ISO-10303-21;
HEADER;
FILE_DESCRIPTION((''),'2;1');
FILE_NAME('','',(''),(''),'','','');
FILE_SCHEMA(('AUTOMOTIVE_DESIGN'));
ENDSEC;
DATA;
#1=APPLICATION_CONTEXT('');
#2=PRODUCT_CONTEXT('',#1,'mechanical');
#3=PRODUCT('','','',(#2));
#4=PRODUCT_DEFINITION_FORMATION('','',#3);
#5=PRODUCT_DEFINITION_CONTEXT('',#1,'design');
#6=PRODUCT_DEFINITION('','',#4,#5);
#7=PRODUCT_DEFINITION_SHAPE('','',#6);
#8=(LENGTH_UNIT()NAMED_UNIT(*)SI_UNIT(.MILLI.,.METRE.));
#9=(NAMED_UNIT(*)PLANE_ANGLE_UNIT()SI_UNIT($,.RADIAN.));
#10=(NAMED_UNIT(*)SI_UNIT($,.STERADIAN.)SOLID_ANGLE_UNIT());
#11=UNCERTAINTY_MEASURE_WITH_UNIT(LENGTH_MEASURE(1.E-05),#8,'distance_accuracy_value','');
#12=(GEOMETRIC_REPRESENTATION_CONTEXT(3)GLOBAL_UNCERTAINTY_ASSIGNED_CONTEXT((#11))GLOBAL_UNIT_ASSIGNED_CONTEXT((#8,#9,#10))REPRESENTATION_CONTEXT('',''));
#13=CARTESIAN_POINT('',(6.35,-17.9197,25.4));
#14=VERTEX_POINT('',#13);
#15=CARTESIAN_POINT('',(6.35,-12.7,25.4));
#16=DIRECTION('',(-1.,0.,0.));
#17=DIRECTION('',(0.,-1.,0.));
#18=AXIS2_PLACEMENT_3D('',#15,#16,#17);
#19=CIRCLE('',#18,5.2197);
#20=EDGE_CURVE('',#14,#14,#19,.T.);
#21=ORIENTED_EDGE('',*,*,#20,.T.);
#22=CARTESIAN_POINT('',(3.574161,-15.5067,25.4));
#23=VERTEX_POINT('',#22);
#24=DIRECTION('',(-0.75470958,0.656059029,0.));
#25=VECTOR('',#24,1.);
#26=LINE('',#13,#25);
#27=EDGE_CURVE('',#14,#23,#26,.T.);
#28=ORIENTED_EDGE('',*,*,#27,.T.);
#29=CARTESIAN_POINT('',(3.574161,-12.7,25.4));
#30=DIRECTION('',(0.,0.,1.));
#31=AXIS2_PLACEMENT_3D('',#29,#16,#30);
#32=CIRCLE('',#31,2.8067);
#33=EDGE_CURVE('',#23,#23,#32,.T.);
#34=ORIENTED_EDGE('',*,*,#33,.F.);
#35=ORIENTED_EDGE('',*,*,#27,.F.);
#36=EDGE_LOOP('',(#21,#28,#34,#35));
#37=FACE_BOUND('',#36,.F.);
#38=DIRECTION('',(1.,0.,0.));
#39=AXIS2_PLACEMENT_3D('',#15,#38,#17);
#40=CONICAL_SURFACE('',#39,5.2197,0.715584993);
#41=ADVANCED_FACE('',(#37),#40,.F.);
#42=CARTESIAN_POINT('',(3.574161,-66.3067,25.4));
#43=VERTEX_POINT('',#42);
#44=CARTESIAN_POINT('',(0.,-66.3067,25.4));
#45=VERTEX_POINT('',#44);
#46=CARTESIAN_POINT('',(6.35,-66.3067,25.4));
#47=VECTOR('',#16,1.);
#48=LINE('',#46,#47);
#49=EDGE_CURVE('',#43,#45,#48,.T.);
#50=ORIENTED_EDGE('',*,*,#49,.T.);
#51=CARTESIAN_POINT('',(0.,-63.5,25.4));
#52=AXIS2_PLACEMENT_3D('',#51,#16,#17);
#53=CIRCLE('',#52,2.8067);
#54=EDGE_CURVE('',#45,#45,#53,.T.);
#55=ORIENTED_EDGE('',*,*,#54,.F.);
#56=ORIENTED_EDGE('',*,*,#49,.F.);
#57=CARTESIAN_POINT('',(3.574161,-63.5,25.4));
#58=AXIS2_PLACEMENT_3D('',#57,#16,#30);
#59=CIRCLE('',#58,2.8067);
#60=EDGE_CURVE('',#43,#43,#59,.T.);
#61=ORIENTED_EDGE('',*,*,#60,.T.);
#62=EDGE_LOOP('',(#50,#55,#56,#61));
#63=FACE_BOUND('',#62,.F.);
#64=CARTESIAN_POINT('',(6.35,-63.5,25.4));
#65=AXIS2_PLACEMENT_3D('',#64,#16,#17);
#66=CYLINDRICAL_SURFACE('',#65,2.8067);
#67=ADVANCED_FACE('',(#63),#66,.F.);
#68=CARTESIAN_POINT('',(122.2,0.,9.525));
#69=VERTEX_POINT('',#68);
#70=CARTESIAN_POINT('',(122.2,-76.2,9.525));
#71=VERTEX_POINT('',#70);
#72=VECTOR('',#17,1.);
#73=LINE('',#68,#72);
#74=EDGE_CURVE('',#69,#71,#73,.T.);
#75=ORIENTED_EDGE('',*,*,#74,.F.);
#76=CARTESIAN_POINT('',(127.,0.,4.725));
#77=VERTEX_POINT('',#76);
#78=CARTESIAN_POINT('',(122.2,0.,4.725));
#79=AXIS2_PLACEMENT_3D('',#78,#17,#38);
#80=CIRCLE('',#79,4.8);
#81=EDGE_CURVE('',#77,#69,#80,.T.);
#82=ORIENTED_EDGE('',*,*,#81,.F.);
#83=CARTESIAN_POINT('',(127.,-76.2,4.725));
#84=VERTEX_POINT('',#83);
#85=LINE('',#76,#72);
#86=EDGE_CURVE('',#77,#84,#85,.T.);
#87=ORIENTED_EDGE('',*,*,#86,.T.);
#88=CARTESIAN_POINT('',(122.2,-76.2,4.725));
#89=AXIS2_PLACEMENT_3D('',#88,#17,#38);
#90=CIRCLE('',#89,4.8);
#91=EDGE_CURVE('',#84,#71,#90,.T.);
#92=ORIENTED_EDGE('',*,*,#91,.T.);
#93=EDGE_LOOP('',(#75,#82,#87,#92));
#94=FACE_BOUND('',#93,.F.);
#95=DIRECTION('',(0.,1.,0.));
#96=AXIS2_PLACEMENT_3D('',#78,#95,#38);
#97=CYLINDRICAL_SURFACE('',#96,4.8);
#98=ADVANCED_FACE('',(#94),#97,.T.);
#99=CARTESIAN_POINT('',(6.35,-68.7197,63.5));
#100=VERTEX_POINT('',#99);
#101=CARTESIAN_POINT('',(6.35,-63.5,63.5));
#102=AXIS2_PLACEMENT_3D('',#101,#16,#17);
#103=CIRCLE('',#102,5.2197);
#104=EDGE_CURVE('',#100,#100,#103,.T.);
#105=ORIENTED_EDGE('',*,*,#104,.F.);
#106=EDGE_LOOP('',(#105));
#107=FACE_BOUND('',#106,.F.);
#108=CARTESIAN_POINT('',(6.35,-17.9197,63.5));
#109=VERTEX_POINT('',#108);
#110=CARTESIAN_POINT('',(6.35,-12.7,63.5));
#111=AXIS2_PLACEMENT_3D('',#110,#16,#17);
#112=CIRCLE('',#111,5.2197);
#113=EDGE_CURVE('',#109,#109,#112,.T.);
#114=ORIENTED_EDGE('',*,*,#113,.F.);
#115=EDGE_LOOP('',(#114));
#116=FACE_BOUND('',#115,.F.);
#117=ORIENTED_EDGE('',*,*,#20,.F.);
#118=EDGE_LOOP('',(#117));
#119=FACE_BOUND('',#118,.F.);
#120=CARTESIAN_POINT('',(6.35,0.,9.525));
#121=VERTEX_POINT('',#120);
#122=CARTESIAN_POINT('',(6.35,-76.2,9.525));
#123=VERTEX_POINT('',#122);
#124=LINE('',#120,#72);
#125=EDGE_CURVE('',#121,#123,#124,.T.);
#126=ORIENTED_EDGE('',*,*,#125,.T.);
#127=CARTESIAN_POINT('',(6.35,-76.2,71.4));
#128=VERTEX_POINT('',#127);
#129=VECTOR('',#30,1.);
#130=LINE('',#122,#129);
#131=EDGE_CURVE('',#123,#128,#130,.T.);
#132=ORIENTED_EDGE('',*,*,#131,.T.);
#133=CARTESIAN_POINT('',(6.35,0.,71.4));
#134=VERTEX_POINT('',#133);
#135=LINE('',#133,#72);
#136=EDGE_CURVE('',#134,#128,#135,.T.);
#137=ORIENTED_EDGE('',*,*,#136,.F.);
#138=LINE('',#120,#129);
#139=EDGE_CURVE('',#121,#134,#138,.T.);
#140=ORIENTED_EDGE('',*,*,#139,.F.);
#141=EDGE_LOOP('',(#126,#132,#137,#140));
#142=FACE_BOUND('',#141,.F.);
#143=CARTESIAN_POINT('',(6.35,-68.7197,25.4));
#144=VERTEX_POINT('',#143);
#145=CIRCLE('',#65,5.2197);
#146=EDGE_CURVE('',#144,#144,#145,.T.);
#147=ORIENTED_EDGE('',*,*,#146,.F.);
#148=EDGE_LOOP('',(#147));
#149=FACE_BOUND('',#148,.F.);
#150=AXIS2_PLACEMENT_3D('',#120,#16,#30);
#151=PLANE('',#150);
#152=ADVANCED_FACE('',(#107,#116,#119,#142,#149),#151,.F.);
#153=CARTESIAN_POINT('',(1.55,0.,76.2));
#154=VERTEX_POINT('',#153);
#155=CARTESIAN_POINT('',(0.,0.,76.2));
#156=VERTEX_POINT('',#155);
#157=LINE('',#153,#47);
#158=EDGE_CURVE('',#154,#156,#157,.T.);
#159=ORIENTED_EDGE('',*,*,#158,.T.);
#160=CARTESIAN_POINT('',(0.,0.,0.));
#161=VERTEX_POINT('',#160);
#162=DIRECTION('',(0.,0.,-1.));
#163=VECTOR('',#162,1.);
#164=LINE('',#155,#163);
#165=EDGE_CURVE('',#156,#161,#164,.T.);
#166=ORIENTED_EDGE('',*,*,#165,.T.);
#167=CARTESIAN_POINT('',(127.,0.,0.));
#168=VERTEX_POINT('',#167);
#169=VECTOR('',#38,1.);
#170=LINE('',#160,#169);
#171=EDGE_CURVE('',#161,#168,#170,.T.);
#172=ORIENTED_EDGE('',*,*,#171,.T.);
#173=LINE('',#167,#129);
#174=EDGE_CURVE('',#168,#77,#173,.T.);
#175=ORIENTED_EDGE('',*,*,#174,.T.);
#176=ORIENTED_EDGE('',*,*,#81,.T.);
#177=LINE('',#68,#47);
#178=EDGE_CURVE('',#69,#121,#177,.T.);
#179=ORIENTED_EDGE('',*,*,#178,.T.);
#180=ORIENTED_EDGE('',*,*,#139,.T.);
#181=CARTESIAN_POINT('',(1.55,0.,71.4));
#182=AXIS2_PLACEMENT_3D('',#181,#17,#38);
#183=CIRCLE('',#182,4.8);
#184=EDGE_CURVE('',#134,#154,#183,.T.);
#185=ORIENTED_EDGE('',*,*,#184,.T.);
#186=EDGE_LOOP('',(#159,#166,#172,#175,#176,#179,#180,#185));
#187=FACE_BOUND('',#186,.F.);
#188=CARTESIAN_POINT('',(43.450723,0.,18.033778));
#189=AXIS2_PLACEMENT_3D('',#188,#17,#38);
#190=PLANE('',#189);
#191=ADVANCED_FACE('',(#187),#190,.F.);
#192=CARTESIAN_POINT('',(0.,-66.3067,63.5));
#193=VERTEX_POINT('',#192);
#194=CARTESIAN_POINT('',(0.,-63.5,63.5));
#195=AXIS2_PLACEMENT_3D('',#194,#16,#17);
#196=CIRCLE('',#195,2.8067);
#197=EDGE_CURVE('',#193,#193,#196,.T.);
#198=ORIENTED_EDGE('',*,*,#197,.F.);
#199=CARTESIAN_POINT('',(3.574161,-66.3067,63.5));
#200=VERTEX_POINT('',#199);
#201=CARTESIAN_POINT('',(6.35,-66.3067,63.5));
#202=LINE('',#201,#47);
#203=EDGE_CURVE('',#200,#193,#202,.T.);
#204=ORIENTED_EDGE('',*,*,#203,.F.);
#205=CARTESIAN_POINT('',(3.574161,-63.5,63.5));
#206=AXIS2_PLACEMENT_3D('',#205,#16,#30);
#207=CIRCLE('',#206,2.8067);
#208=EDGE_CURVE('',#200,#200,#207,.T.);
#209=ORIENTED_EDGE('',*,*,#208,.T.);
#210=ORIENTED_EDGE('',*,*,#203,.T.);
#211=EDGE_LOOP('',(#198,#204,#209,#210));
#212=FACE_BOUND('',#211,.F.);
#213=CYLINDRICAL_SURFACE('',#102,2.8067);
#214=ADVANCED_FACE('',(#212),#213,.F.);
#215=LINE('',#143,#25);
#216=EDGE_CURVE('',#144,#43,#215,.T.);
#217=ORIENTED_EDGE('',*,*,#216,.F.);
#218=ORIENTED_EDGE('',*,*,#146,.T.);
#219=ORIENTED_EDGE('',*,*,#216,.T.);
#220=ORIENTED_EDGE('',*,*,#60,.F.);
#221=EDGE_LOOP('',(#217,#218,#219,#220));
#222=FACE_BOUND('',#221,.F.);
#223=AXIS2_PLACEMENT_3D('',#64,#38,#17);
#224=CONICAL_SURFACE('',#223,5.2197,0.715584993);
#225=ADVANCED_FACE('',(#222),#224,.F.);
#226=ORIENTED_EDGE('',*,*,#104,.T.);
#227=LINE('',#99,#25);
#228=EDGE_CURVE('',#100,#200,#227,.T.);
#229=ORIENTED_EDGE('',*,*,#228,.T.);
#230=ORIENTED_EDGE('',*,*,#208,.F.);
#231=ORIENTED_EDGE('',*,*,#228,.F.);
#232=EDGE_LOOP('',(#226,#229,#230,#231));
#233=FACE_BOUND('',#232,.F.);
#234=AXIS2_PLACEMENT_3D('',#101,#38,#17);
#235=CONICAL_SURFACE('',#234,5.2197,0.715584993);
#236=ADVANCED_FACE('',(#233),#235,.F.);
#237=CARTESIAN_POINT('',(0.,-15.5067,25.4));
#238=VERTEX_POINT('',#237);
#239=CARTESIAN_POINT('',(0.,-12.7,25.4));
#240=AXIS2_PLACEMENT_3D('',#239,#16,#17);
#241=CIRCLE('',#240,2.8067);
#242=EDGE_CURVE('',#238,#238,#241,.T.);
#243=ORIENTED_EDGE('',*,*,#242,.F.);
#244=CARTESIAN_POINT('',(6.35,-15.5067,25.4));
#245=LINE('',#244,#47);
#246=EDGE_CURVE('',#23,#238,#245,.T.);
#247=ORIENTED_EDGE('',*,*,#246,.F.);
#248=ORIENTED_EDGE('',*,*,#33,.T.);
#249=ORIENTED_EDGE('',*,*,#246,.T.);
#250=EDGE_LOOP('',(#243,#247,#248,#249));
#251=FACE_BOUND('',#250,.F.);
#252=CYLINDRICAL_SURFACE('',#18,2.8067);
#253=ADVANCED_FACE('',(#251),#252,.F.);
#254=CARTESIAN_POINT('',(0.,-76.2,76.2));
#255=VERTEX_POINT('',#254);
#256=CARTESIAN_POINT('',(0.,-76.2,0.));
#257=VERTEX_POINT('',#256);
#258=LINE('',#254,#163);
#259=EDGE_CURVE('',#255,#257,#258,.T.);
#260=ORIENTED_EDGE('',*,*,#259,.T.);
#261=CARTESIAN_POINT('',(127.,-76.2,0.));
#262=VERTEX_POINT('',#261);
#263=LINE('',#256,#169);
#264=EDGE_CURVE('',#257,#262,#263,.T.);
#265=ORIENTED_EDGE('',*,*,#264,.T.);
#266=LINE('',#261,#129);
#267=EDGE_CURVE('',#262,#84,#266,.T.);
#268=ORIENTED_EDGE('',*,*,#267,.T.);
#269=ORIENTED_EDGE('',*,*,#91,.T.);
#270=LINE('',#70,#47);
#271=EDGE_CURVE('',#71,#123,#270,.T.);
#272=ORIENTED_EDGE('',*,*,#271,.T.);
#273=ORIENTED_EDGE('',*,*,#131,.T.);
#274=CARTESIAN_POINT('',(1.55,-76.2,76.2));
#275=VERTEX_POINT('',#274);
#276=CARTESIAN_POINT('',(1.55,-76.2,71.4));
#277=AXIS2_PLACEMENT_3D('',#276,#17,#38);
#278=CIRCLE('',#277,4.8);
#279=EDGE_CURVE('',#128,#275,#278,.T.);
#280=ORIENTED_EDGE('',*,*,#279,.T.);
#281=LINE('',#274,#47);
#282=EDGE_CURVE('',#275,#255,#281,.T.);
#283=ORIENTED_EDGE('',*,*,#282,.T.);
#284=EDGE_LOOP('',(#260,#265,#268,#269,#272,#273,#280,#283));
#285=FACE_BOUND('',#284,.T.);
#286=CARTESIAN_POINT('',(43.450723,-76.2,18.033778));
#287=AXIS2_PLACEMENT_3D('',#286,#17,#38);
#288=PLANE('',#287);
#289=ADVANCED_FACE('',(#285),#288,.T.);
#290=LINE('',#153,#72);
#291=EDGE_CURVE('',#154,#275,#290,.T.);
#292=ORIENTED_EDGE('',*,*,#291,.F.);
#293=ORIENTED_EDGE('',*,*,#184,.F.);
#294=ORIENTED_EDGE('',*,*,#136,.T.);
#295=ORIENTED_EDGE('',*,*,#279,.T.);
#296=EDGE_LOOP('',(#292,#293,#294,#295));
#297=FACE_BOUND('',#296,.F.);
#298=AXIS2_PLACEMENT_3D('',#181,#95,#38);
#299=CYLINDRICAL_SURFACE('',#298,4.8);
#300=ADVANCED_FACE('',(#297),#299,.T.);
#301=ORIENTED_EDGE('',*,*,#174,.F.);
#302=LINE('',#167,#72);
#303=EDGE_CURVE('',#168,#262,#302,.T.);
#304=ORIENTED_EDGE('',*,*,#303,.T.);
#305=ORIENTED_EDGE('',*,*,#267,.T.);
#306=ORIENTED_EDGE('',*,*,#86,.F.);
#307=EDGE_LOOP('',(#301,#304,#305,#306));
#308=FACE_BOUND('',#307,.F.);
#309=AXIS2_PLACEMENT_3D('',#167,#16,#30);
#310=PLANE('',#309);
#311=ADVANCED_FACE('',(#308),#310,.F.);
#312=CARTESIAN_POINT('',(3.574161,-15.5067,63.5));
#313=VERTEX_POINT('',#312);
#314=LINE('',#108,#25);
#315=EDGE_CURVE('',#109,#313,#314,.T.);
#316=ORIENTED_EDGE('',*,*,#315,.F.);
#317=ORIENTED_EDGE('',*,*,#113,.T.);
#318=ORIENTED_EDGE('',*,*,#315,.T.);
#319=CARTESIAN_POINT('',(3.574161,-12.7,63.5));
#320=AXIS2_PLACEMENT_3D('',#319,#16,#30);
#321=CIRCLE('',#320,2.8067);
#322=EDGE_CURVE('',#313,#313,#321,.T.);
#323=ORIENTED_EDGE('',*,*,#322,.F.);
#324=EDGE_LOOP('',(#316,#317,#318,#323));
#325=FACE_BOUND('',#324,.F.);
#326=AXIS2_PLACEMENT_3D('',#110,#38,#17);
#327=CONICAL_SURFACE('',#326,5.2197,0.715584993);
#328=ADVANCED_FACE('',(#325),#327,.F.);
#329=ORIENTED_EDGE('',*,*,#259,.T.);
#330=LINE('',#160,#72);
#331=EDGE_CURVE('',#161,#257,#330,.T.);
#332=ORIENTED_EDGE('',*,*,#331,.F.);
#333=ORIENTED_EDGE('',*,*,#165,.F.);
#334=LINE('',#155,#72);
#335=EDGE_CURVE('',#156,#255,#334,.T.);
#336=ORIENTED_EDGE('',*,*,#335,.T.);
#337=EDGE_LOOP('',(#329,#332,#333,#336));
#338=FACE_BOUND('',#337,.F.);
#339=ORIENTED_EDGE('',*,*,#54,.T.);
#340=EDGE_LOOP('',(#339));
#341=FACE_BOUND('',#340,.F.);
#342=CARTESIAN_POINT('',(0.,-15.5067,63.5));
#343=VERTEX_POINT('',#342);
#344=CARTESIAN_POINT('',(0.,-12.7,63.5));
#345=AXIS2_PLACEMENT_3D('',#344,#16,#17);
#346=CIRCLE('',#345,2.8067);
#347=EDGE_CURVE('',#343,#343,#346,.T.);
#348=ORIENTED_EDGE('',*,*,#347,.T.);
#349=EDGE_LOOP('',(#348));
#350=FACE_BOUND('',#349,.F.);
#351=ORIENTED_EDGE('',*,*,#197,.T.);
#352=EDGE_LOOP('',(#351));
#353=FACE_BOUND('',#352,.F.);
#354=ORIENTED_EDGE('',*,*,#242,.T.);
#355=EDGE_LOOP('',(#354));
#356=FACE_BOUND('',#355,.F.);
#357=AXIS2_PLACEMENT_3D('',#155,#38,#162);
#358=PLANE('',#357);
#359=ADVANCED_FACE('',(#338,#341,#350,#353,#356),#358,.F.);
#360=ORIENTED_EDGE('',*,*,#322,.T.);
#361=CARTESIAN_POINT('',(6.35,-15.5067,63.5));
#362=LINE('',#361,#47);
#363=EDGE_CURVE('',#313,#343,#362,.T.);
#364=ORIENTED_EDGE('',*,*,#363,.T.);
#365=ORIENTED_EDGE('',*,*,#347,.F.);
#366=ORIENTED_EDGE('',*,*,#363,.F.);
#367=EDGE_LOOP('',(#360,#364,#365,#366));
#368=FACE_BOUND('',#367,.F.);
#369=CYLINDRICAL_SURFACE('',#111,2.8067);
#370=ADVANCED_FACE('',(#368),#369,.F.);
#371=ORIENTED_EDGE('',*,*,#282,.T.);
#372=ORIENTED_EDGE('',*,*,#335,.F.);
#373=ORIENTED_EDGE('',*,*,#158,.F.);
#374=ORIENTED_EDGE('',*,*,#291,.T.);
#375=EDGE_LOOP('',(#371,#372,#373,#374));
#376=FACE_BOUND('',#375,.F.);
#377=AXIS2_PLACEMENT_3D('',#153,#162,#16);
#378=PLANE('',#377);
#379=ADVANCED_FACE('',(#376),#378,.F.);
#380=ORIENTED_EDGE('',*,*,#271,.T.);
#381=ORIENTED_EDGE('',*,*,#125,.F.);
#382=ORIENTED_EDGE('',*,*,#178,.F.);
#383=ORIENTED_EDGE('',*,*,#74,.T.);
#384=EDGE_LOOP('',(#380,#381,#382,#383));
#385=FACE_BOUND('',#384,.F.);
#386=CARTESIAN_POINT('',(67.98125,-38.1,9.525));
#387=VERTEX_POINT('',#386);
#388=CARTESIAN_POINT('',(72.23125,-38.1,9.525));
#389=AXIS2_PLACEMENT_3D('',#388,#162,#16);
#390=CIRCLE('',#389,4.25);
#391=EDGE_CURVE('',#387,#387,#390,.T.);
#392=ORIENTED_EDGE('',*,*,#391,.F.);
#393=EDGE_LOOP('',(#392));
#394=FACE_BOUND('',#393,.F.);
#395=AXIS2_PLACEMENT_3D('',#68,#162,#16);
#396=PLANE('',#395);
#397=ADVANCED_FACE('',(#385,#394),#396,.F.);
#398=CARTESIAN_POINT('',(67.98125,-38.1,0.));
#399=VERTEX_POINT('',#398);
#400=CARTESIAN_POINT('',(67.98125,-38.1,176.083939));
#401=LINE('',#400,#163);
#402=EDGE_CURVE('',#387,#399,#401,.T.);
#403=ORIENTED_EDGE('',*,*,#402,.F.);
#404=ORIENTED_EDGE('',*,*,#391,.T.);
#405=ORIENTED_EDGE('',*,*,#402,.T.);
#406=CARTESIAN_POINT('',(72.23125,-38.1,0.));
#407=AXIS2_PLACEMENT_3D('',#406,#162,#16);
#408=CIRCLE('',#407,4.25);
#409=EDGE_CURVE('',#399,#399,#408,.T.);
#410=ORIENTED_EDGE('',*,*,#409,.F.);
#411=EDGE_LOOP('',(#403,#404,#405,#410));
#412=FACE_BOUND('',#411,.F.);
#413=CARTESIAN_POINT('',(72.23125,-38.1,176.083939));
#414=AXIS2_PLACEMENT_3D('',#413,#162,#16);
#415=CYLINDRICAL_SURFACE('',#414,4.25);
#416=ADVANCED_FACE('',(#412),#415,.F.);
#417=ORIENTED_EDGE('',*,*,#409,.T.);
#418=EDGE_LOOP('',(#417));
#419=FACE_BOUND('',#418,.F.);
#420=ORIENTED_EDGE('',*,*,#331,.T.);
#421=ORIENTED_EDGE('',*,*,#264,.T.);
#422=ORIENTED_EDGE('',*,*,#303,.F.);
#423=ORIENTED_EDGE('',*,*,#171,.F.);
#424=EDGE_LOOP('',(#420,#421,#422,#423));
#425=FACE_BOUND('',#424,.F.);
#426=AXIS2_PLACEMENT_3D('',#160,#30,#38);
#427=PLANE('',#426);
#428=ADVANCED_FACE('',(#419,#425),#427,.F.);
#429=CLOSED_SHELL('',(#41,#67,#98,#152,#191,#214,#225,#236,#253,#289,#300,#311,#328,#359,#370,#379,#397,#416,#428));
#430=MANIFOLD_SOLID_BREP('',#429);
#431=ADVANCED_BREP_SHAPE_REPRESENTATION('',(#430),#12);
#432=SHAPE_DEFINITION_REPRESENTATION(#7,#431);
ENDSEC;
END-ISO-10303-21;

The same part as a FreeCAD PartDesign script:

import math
import FreeCAD as App
import Part
import Sketcher

V = App.Vector
Q = App.Units.Quantity

doc = App.newDocument("Part")
body = doc.addObject("PartDesign::Body", "Body")

# Sketch on XZ plane
sketch1 = doc.addObject("Sketcher::SketchObject", "Sketch")
body.addObject(sketch1)
sketch1.AttachmentSupport = (doc.XZ_Plane, [""])
sketch1.MapMode = "FlatFace"
sketch1.addGeometry(Part.LineSegment(V(0, 76.2, 0), V(0, 0, 0)), False)
sketch1.addGeometry(Part.LineSegment(V(0, 0, 0), V(127, 0, 0)), False)
sketch1.addGeometry(Part.LineSegment(V(127, 0, 0), V(127, 4.7, 0)), False)
sketch1.addGeometry(Part.ArcOfCircle(Part.Circle(V(122.2, 4.7, 0), V(0, 0, 1), 4.8), math.radians(0), math.radians(90)), False)
sketch1.addGeometry(Part.LineSegment(V(122.2, 9.5, 0), V(6.3, 9.5, 0)), False)
sketch1.addGeometry(Part.LineSegment(V(6.3, 9.5, 0), V(6.3, 71.4, 0)), False)
sketch1.addGeometry(Part.ArcOfCircle(Part.Circle(V(1.6, 71.4, 0), V(0, 0, 1), 4.8), math.radians(0), math.radians(90)), False)
sketch1.addGeometry(Part.LineSegment(V(1.6, 76.2, 0), V(0, 76.2, 0)), False)
sketch1.addConstraint(Sketcher.Constraint("Coincident", 0, 2, 1, 1))
sketch1.addConstraint(Sketcher.Constraint("Coincident", 1, 2, 2, 1))
sketch1.addConstraint(Sketcher.Constraint("Tangent", 2, 2, 3, 1))
sketch1.addConstraint(Sketcher.Constraint("Tangent", 3, 2, 4, 1))
sketch1.addConstraint(Sketcher.Constraint("Coincident", 4, 2, 5, 1))
sketch1.addConstraint(Sketcher.Constraint("Tangent", 5, 2, 6, 1))
sketch1.addConstraint(Sketcher.Constraint("Tangent", 6, 2, 7, 1))
sketch1.addConstraint(Sketcher.Constraint("Coincident", 7, 2, 0, 1))
sketch1.addConstraint(Sketcher.Constraint("Vertical", 0))
sketch1.addConstraint(Sketcher.Constraint("Horizontal", 1))
sketch1.addConstraint(Sketcher.Constraint("Vertical", 2))
sketch1.addConstraint(Sketcher.Constraint("Horizontal", 4))
sketch1.addConstraint(Sketcher.Constraint("Vertical", 5))
sketch1.addConstraint(Sketcher.Constraint("Horizontal", 7))
sketch1.addConstraint(Sketcher.Constraint("Coincident", 0, 2, -1, 1))
sketch1.addConstraint(Sketcher.Constraint("Equal", 3, 6))
sketch1.addConstraint(Sketcher.Constraint("DistanceX", 1, 1, 1, 2, Q("5 in")))
sketch1.addConstraint(Sketcher.Constraint("DistanceY", 0, 2, 0, 1, Q("3 in")))
sketch1.addConstraint(Sketcher.Constraint("DistanceX", -1, 1, 4, 2, Q("0.25 in")))
sketch1.addConstraint(Sketcher.Constraint("Radius", 3, 4.8))
sketch1.addConstraint(Sketcher.Constraint("DistanceY", -1, 1, 3, 2, Q("0.375 in")))
pad1 = doc.addObject("PartDesign::Pad", "Pad")
body.addObject(pad1)
pad1.Profile = sketch1
pad1.Length = Q("3 in")

# Sketch on XY plane
sketch2 = doc.addObject("Sketcher::SketchObject", "Sketch001")
body.addObject(sketch2)
sketch2.AttachmentSupport = (doc.XY_Plane, [""])
sketch2.MapMode = "FlatFace"
sketch2.AttachmentOffset = App.Placement(V(0, 0, 0.375 * 25.4), App.Rotation())
sketch2.addGeometry(Part.Circle(V(72.2, -38.1, 0), V(0, 0, 1), 4.2), False)
sketch2.addConstraint(Sketcher.Constraint("DistanceY", 0, 3, -1, 1, Q("1.5 in")))
sketch2.addConstraint(Sketcher.Constraint("Diameter", 0, 8.5))
sketch2.addConstraint(Sketcher.Constraint("DistanceX", -1, 1, 0, 3, Q("2.84375 in")))
doc.recompute()
hole = doc.addObject("PartDesign::Hole", "Hole")
body.addObject(hole)
hole.Profile = sketch2
hole.ThreadType = "None"
hole.Diameter = 8.5
hole.DepthType = "ThroughAll"

# Sketch on YZ plane
sketch3 = doc.addObject("Sketcher::SketchObject", "Sketch002")
body.addObject(sketch3)
sketch3.AttachmentSupport = (doc.YZ_Plane, [""])
sketch3.MapMode = "FlatFace"
sketch3.AttachmentOffset = App.Placement(V(0, 0, 0.25 * 25.4), App.Rotation())
sketch3.addGeometry(Part.Circle(V(-63.5, 63.5, 0), V(0, 0, 1), 2.8), False)
sketch3.addGeometry(Part.Circle(V(-63.5, 25.4, 0), V(0, 0, 1), 2.8), False)
sketch3.addGeometry(Part.Circle(V(-12.7, 25.4, 0), V(0, 0, 1), 2.8), False)
sketch3.addGeometry(Part.Circle(V(-12.7, 63.5, 0), V(0, 0, 1), 2.8), False)
sketch3.addConstraint(Sketcher.Constraint("Equal", 0, 1))
sketch3.addConstraint(Sketcher.Constraint("Equal", 1, 2))
sketch3.addConstraint(Sketcher.Constraint("Equal", 2, 3))
sketch3.addConstraint(Sketcher.Constraint("Horizontal", 1, 3, 2, 3))
sketch3.addConstraint(Sketcher.Constraint("Horizontal", 0, 3, 3, 3))
sketch3.addConstraint(Sketcher.Constraint("Vertical", 0, 3, 1, 3))
sketch3.addConstraint(Sketcher.Constraint("Vertical", 2, 3, 3, 3))
sketch3.addConstraint(Sketcher.Constraint("Diameter", 0, Q("0.221 in")))
sketch3.addConstraint(Sketcher.Constraint("DistanceY", -1, 1, 1, 3, Q("1 in")))
sketch3.addConstraint(Sketcher.Constraint("DistanceX", 1, 3, 2, 3, Q("2 in")))
sketch3.addConstraint(Sketcher.Constraint("DistanceX", 0, 3, -1, 1, Q("2.5 in")))
sketch3.addConstraint(Sketcher.Constraint("DistanceY", -1, 1, 0, 3, Q("2.5 in")))
doc.recompute()
hole2 = doc.addObject("PartDesign::Hole", "Hole001")
body.addObject(hole2)
hole2.Profile = sketch3
hole2.ThreadType = "None"
hole2.Diameter = Q("0.221 in")
hole2.DepthType = "ThroughAll"
hole2.HoleCutType = "Countersink"
hole2.HoleCutDiameter = Q("0.411 in")
hole2.HoleCutCountersinkAngle = 82

doc.recompute()
